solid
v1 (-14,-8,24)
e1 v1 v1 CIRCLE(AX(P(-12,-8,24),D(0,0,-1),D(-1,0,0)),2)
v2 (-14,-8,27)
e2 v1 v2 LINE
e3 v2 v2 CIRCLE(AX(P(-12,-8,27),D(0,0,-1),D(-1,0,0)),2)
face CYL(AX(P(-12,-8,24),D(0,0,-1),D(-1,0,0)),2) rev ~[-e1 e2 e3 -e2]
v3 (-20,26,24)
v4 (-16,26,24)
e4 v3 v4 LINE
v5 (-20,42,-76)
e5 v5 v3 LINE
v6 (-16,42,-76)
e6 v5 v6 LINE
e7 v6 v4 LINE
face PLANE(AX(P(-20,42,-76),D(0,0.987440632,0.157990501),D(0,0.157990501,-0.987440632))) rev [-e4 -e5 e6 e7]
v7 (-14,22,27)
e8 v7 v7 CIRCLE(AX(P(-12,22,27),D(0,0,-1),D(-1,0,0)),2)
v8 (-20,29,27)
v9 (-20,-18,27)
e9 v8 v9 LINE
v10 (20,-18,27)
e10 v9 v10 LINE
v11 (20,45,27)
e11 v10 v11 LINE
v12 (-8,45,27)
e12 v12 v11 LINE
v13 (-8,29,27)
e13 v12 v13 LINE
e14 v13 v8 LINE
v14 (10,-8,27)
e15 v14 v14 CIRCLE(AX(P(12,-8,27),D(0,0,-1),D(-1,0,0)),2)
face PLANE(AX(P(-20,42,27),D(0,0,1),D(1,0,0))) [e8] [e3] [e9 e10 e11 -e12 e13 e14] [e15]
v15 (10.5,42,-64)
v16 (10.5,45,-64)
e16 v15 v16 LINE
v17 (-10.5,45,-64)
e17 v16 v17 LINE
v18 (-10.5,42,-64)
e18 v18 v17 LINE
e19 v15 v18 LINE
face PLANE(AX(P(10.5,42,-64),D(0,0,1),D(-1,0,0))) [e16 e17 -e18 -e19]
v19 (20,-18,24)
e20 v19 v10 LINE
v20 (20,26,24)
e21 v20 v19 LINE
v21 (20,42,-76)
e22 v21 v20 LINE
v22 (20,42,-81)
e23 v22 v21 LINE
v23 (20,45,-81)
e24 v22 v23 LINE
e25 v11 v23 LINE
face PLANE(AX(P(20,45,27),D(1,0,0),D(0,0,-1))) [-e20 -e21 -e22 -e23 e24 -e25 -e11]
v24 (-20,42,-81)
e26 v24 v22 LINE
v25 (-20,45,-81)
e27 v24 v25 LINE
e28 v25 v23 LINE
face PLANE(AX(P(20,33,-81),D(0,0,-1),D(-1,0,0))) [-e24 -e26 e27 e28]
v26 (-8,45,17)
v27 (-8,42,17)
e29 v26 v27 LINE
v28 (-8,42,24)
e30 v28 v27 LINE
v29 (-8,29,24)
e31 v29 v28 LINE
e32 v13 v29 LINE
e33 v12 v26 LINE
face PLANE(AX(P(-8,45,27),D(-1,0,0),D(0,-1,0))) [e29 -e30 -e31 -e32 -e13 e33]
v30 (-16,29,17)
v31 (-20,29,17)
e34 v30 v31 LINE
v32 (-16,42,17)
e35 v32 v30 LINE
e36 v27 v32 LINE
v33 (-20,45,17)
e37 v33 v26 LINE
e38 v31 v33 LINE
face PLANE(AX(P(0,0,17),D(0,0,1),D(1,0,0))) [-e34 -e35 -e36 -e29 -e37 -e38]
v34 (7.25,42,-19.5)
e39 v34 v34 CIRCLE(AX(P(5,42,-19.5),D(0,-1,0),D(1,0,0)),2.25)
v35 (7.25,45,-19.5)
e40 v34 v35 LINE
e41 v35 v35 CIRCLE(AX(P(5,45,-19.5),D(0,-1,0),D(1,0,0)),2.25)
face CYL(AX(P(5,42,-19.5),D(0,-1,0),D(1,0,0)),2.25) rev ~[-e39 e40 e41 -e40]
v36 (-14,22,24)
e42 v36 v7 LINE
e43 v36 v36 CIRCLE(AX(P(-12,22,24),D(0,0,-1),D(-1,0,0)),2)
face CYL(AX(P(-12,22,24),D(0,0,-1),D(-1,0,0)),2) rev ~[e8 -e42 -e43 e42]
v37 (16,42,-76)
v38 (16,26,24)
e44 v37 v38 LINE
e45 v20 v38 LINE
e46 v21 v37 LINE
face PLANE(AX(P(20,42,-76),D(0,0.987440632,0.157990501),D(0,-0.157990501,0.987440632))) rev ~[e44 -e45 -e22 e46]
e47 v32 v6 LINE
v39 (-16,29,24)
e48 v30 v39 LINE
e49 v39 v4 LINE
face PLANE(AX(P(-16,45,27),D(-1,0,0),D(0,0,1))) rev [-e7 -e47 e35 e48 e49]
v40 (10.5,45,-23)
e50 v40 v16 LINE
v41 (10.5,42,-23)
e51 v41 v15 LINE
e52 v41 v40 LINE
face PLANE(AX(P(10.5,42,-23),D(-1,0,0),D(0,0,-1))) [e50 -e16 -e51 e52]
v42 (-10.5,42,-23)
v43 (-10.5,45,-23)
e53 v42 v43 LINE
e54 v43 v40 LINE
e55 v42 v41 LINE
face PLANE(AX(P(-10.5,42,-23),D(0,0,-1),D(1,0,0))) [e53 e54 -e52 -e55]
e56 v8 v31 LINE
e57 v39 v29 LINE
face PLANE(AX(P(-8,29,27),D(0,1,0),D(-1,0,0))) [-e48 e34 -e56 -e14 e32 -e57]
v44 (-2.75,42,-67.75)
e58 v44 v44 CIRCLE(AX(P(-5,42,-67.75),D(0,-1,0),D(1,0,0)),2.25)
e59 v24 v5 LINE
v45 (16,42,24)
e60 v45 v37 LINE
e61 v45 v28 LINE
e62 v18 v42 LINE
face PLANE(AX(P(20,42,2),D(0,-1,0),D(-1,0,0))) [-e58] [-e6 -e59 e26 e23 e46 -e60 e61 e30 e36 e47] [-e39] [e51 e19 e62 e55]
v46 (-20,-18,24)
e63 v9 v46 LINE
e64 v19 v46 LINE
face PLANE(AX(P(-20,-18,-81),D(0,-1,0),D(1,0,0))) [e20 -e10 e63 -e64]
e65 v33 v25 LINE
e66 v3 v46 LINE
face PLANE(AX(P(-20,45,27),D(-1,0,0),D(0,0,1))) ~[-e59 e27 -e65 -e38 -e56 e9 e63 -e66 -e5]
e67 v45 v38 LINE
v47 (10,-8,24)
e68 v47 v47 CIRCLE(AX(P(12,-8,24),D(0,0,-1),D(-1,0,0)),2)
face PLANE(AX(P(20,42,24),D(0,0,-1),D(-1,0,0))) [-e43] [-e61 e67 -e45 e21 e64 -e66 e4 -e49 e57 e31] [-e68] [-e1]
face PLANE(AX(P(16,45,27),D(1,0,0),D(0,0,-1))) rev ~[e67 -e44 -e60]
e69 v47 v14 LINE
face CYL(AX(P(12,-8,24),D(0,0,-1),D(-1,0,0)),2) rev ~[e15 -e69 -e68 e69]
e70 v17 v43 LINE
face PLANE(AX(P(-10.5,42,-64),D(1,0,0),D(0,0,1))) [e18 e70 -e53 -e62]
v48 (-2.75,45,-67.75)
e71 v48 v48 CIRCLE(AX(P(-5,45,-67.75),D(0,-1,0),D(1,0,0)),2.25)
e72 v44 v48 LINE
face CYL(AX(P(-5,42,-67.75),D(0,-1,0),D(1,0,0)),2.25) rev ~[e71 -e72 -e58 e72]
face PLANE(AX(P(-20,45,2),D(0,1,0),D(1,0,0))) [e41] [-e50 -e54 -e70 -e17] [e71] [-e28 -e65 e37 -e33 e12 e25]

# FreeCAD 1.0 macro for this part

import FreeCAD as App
import Part
import Sketcher
Q = App.Units.Quantity


def add_polygon(sketch, points):
    """Adds a closed chain of lines whose ends are joined by coincident constraints."""
    first, n = sketch.GeometryCount, len(points)
    for a, b in zip(points, points[1:] + points[:1]):
        sketch.addGeometry(Part.LineSegment(App.Vector(*a, 0), App.Vector(*b, 0)), False)
    for i in range(n):
        sketch.addConstraint(Sketcher.Constraint("Coincident", first + i, 2, first + (i + 1) % n, 1))

doc = App.newDocument("Part")
body = doc.addObject("PartDesign::Body", "Body")

sketch1 = doc.addObject("Sketcher::SketchObject", "Sketch")
body.addObject(sketch1)
sketch1.AttachmentSupport = (doc.XY_Plane, [""])
sketch1.MapMode = "FlatFace"
add_polygon(sketch1, [(33, 33), (-33, 33), (-33, -33), (33, -33)])
sketch1.addConstraint([
    Sketcher.Constraint("Horizontal", 0),
    Sketcher.Constraint("Vertical", 1),
    Sketcher.Constraint("Horizontal", 2),
    Sketcher.Constraint("Vertical", 3),
    Sketcher.Constraint("Symmetric", 0, 2, 2, 2, -1, 1),
    Sketcher.Constraint("Equal", 2, 1),
    Sketcher.Constraint("DistanceX", 0, 2, 0, 1, Q("66 mm")),
])
pad1 = doc.addObject("PartDesign::Pad", "Pad")
body.addObject(pad1)
pad1.Profile = sketch1
pad1.Length = 2

sketch2 = doc.addObject("Sketcher::SketchObject", "Sketch001")
body.addObject(sketch2)
sketch2.AttachmentSupport = (doc.XY_Plane, [""])
sketch2.MapMode = "FlatFace"
add_polygon(sketch2, [(33, 33), (-33, 33), (-33, -33), (33, -33)])
add_polygon(sketch2, [(31, -31), (-31, -31), (-31, 31), (31, 31)])
sketch2.addConstraint([
    Sketcher.Constraint("Horizontal", 0),
    Sketcher.Constraint("Vertical", 1),
    Sketcher.Constraint("Horizontal", 2),
    Sketcher.Constraint("Vertical", 3),
    Sketcher.Constraint("Horizontal", 4),
    Sketcher.Constraint("Vertical", 5),
    Sketcher.Constraint("Horizontal", 6),
    Sketcher.Constraint("Vertical", 7),
    Sketcher.Constraint("Symmetric", 0, 2, 2, 2, -1, 1),
    Sketcher.Constraint("Symmetric", 4, 2, 6, 2, -1, 1),
    Sketcher.Constraint("Equal", 2, 1),
    Sketcher.Constraint("Equal", 6, 5),
    Sketcher.Constraint("DistanceX", 4, 2, 4, 1, Q("62 mm")),
    Sketcher.Constraint("DistanceX", 1, 2, 4, 2, Q("2 mm")),
])
pad2 = doc.addObject("PartDesign::Pad", "Pad001")
body.addObject(pad2)
pad2.Profile = sketch2
pad2.Length = 12
pad2.Reversed = True

sketch3 = doc.addObject("Sketcher::SketchObject", "Sketch002")
body.addObject(sketch3)
sketch3.AttachmentSupport = (doc.XZ_Plane, [""])
sketch3.MapMode = "FlatFace"
sketch3.AttachmentOffset = App.Placement(App.Vector(0, 0, -33), App.Rotation())
add_polygon(sketch3, [(20, -1), (-20, -1), (-20, 2), (20, 2)])
sketch3.addConstraint([
    Sketcher.Constraint("Horizontal", 0),
    Sketcher.Constraint("Vertical", 1),
    Sketcher.Constraint("Horizontal", 2),
    Sketcher.Constraint("Vertical", 3),
    Sketcher.Constraint("DistanceX", 0, 2, 0, 1, Q("40 mm")),
    Sketcher.Constraint("DistanceY", 1, 1, 1, 2, Q("3 mm")),
    Sketcher.Constraint("DistanceX", 0, 2, -1, 1, Q("20 mm")),
    Sketcher.Constraint("DistanceY", 0, 2, -1, 1, Q("1 mm")),
])
pad3 = doc.addObject("PartDesign::Pad", "Pad002")
body.addObject(pad3)
pad3.Profile = sketch3
pad3.Length = 12
pad3.Reversed = True

sketch4 = doc.addObject("Sketcher::SketchObject", "Sketch003")
body.addObject(sketch4)
sketch4.AttachmentSupport = (doc.XY_Plane, [""])
sketch4.MapMode = "FlatFace"
sketch4.AttachmentOffset = App.Placement(App.Vector(0, 0, -1), App.Rotation())
add_polygon(sketch4, [(-20, 42), (-20, 45), (20, 45), (20, 42)])
sketch4.addConstraint([
    Sketcher.Constraint("Vertical", 0),
    Sketcher.Constraint("Horizontal", 1),
    Sketcher.Constraint("Vertical", 2),
    Sketcher.Constraint("Horizontal", 3),
    Sketcher.Constraint("DistanceY", 0, 1, 0, 2, Q("3 mm")),
    Sketcher.Constraint("DistanceX", 1, 1, 1, 2, Q("40 mm")),
    Sketcher.Constraint("DistanceX", 0, 2, -1, 1, Q("20 mm")),
    Sketcher.Constraint("DistanceY", -1, 1, 0, 2, Q("45 mm")),
])
pad4 = doc.addObject("PartDesign::Pad", "Pad003")
body.addObject(pad4)
pad4.Profile = sketch4
pad4.Length = 80
pad4.Reversed = True

sketch5 = doc.addObject("Sketcher::SketchObject", "Sketch004")
body.addObject(sketch5)
sketch5.AttachmentSupport = (doc.XZ_Plane, [""])
sketch5.MapMode = "FlatFace"
sketch5.AttachmentOffset = App.Placement(App.Vector(0, 0, -42), App.Rotation())
add_polygon(sketch5, [(-10, -64), (10, -64), (10, -23), (-10, -23)])
sketch5.addConstraint([
    Sketcher.Constraint("Horizontal", 0),
    Sketcher.Constraint("Vertical", 1),
    Sketcher.Constraint("Horizontal", 2),
    Sketcher.Constraint("Vertical", 3),
    Sketcher.Constraint("DistanceX", 0, 1, 0, 2, Q("21 mm")),
    Sketcher.Constraint("DistanceY", 1, 1, 1, 2, Q("41 mm")),
    Sketcher.Constraint("DistanceY", 0, 2, -1, 1, Q("64 mm")),
    Sketcher.Constraint("DistanceX", -1, 1, 0, 2, Q("10.5 mm")),
])
pocket1 = doc.addObject("PartDesign::Pocket", "Pocket")
body.addObject(pocket1)
pocket1.Profile = sketch5
pocket1.Length = 80

sketch6 = doc.addObject("Sketcher::SketchObject", "Sketch005")
body.addObject(sketch6)
sketch6.AttachmentSupport = (doc.XZ_Plane, [""])
sketch6.MapMode = "FlatFace"
sketch6.AttachmentOffset = App.Placement(App.Vector(0, 0, -42), App.Rotation())
sketch6.addGeometry([
    Part.Circle(App.Vector(-5, -67.8, 0), App.Vector(0, 0, 1), 2.2),
    Part.Circle(App.Vector(5, -19.5, 0), App.Vector(0, 0, 1), 2.2),
], False)
sketch6.addConstraint([
    Sketcher.Constraint("Equal", 0, 1),
    Sketcher.Constraint("Diameter", 0, Q("4.5 mm")),
    Sketcher.Constraint("DistanceX", 0, 3, -1, 1, Q("5 mm")),
    Sketcher.Constraint("DistanceX", -1, 1, 1, 3, Q("5 mm")),
    Sketcher.Constraint("DistanceY", 1, 3, -1, 1, Q("19.5 mm")),
    Sketcher.Constraint("DistanceY", 0, 3, -1, 1, Q("67.75 mm")),
])
pocket2 = doc.addObject("PartDesign::Pocket", "Pocket001")
body.addObject(pocket2)
pocket2.Profile = sketch6
pocket2.Length = 80

sketch7 = doc.addObject("Sketcher::SketchObject", "Sketch006")
body.addObject(sketch7)
sketch7.AttachmentSupport = (doc.XZ_Plane, [""])
sketch7.MapMode = "FlatFace"
sketch7.AttachmentOffset = App.Placement(App.Vector(0, 0, 33), App.Rotation())
add_polygon(sketch7, [(-33, 2), (-33, -12), (33, -12), (33, 2)])
sketch7.addConstraint([
    Sketcher.Constraint("Vertical", 0),
    Sketcher.Constraint("Horizontal", 1),
    Sketcher.Constraint("Vertical", 2),
    Sketcher.Constraint("Horizontal", 3),
    Sketcher.Constraint("DistanceX", 1, 1, 1, 2, Q("66 mm")),
    Sketcher.Constraint("DistanceY", 0, 2, 0, 1, Q("14 mm")),
    Sketcher.Constraint("DistanceX", 0, 2, -1, 1, Q("33 mm")),
    Sketcher.Constraint("DistanceY", 0, 2, -1, 1, Q("12 mm")),
])
pocket3 = doc.addObject("PartDesign::Pocket", "Pocket002")
body.addObject(pocket3)
pocket3.Profile = sketch7
pocket3.Length = 75

sketch8 = doc.addObject("Sketcher::SketchObject", "Sketch007")
body.addObject(sketch8)
sketch8.AttachmentSupport = (doc.XY_Plane, [""])
sketch8.MapMode = "FlatFace"
sketch8.AttachmentOffset = App.Placement(App.Vector(0, 0, 2), App.Rotation())
add_polygon(sketch8, [(-20, 45), (-20, 42), (20, 42), (20, 45)])
sketch8.addConstraint([
    Sketcher.Constraint("Vertical", 0),
    Sketcher.Constraint("Horizontal", 1),
    Sketcher.Constraint("Vertical", 2),
    Sketcher.Constraint("Horizontal", 3),
    Sketcher.Constraint("DistanceX", 1, 1, 1, 2, Q("40 mm")),
    Sketcher.Constraint("DistanceY", 0, 2, 0, 1, Q("3 mm")),
    Sketcher.Constraint("DistanceX", 0, 2, -1, 1, Q("20 mm")),
    Sketcher.Constraint("DistanceY", -1, 1, 0, 2, Q("42 mm")),
])
pad5 = doc.addObject("PartDesign::Pad", "Pad004")
body.addObject(pad5)
pad5.Profile = sketch8
pad5.Length = 25

sketch9 = doc.addObject("Sketcher::SketchObject", "Sketch008")
body.addObject(sketch9)
sketch9.AttachmentSupport = (doc.XZ_Plane, [""])
sketch9.MapMode = "FlatFace"
sketch9.AttachmentOffset = App.Placement(App.Vector(0, 0, -42), App.Rotation())
add_polygon(sketch9, [(20, 27), (-20, 27), (-20, 24), (20, 24)])
sketch9.addConstraint([
    Sketcher.Constraint("Horizontal", 0),
    Sketcher.Constraint("Vertical", 1),
    Sketcher.Constraint("Horizontal", 2),
    Sketcher.Constraint("Vertical", 3),
    Sketcher.Constraint("DistanceY", 1, 2, 1, 1, Q("3 mm")),
    Sketcher.Constraint("DistanceX", 0, 2, 0, 1, Q("40 mm")),
    Sketcher.Constraint("DistanceX", 0, 2, -1, 1, Q("20 mm")),
    Sketcher.Constraint("DistanceY", -1, 1, 0, 2, Q("27 mm")),
])
pad6 = doc.addObject("PartDesign::Pad", "Pad005")
body.addObject(pad6)
pad6.Profile = sketch9
pad6.Length = 100

sketch10 = doc.addObject("Sketcher::SketchObject", "Sketch009")
body.addObject(sketch10)
sketch10.AttachmentSupport = (doc.XY_Plane, [""])
sketch10.MapMode = "FlatFace"
sketch10.AttachmentOffset = App.Placement(App.Vector(0, 0, 24), App.Rotation())
sketch10.addGeometry([
    Part.Circle(App.Vector(0, -48, 0), App.Vector(0, 0, 1), 2),
    Part.Circle(App.Vector(12, -8, 0), App.Vector(0, 0, 1), 2),
    Part.Circle(App.Vector(-12, 22, 0), App.Vector(0, 0, 1), 2),
], False)
sketch10.addConstraint([
    Sketcher.Constraint("Equal", 0, 1),
    Sketcher.Constraint("Equal", 1, 2),
    Sketcher.Constraint("PointOnObject", 0, 3, -2),
    Sketcher.Constraint("Diameter", 0, Q("4 mm")),
    Sketcher.Constraint("DistanceY", 1, 3, -1, 1, Q("8 mm")),
    Sketcher.Constraint("DistanceY", 0, 3, -1, 1, Q("48 mm")),
    Sketcher.Constraint("DistanceX", -1, 1, 1, 3, Q("12 mm")),
    Sketcher.Constraint("DistanceX", 2, 3, -1, 1, Q("12 mm")),
    Sketcher.Constraint("DistanceY", -1, 1, 2, 3, Q("22 mm")),
])
pocket4 = doc.addObject("PartDesign::Pocket", "Pocket003")
body.addObject(pocket4)
pocket4.Profile = sketch10
pocket4.Length = 10
pocket4.Reversed = True

sketch11 = doc.addObject("Sketcher::SketchObject", "Sketch010")
body.addObject(sketch11)
sketch11.AttachmentSupport = (doc.YZ_Plane, [""])
sketch11.MapMode = "FlatFace"
sketch11.AttachmentOffset = App.Placement(App.Vector(0, 0, 20), App.Rotation())
add_polygon(sketch11, [(42, -76), (42, 24), (26, 24)])
sketch11.addConstraint([
    Sketcher.Constraint("Vertical", 0),
    Sketcher.Constraint("Horizontal", 1),
    Sketcher.Constraint("DistanceX", 1, 2, 1, 1, Q("16 mm")),
    Sketcher.Constraint("DistanceY", 0, 1, 0, 2, Q("100 mm")),
    Sketcher.Constraint("DistanceX", -1, 1, 0, 2, Q("42 mm")),
    Sketcher.Constraint("DistanceY", -1, 1, 0, 2, Q("24 mm")),
])
pad7 = doc.addObject("PartDesign::Pad", "Pad006")
body.addObject(pad7)
pad7.Profile = sketch11
pad7.Length = 4
pad7.Reversed = True
doc.recompute()

mirrored = doc.addObject("PartDesign::Mirrored", "Mirrored")
body.addObject(mirrored)
mirrored.Originals = [pad7]
mirrored.MirrorPlane = (doc.YZ_Plane, [""])
body.Tip = mirrored

sketch12 = doc.addObject("Sketcher::SketchObject", "Sketch011")
body.addObject(sketch12)
sketch12.AttachmentSupport = (doc.XZ_Plane, [""])
sketch12.MapMode = "FlatFace"
sketch12.AttachmentOffset = App.Placement(App.Vector(0, 0, 58), App.Rotation())
add_polygon(sketch12, [(20, 27), (-20, 27), (-20, 24), (20, 24)])
sketch12.addConstraint([
    Sketcher.Constraint("Horizontal", 0),
    Sketcher.Constraint("Vertical", 1),
    Sketcher.Constraint("Horizontal", 2),
    Sketcher.Constraint("Vertical", 3),
    Sketcher.Constraint("DistanceY", 1, 2, 1, 1, Q("3 mm")),
    Sketcher.Constraint("DistanceX", 0, 2, 0, 1, Q("40 mm")),
    Sketcher.Constraint("DistanceX", 0, 2, -1, 1, Q("20 mm")),
    Sketcher.Constraint("DistanceY", -1, 1, 0, 2, Q("27 mm")),
])
pocket5 = doc.addObject("PartDesign::Pocket", "Pocket004")
body.addObject(pocket5)
pocket5.Profile = sketch12
pocket5.Length = 40

sketch13 = doc.addObject("Sketcher::SketchObject", "Sketch012")
body.addObject(sketch13)
sketch13.AttachmentSupport = (doc.XY_Plane, [""])
sketch13.MapMode = "FlatFace"
sketch13.AttachmentOffset = App.Placement(App.Vector(0, 0, 24), App.Rotation())
sketch13.addGeometry(Part.Circle(App.Vector(-12, -8, 0), App.Vector(0, 0, 1), 2), False)
sketch13.addConstraint([
    Sketcher.Constraint("Diameter", 0, Q("4 mm")),
    Sketcher.Constraint("DistanceY", 0, 3, -1, 1, Q("8 mm")),
    Sketcher.Constraint("DistanceX", 0, 3, -1, 1, Q("12 mm")),
])
pocket6 = doc.addObject("PartDesign::Pocket", "Pocket005")
body.addObject(pocket6)
pocket6.Profile = sketch13
pocket6.Length = 40
pocket6.Reversed = True

sketch14 = doc.addObject("Sketcher::SketchObject", "Sketch013")
body.addObject(sketch14)
sketch14.AttachmentSupport = (doc.XY_Plane, [""])
sketch14.MapMode = "FlatFace"
sketch14.AttachmentOffset = App.Placement(App.Vector(0, 0, 27), App.Rotation())
add_polygon(sketch14, [(-8, 45), (-20, 45), (-20, 29), (-8, 29)])
sketch14.addConstraint([
    Sketcher.Constraint("Horizontal", 0),
    Sketcher.Constraint("Vertical", 1),
    Sketcher.Constraint("Horizontal", 2),
    Sketcher.Constraint("Vertical", 3),
    Sketcher.Constraint("DistanceX", 0, 2, 0, 1, Q("12 mm")),
    Sketcher.Constraint("DistanceY", 1, 2, 1, 1, Q("16 mm")),
    Sketcher.Constraint("DistanceX", 0, 2, -1, 1, Q("20 mm")),
    Sketcher.Constraint("DistanceY", -1, 1, 0, 2, Q("45 mm")),
])
pocket7 = doc.addObject("PartDesign::Pocket", "Pocket006")
body.addObject(pocket7)
pocket7.Profile = sketch14
pocket7.Length = 10

doc.recompute()
